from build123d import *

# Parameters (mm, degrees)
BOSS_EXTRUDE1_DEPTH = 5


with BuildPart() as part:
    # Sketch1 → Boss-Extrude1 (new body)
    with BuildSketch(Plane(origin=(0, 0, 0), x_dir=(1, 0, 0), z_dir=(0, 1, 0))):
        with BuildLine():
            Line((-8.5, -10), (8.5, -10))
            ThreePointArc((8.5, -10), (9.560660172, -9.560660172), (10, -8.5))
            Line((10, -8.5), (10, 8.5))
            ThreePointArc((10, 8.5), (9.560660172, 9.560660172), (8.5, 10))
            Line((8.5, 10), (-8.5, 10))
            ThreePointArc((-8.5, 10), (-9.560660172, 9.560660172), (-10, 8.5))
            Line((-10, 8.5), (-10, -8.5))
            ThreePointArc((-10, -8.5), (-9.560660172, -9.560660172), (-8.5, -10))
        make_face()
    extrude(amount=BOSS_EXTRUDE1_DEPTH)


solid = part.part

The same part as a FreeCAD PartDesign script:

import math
import FreeCAD as App
import Part
import Sketcher

V = App.Vector
Q = App.Units.Quantity

doc = App.newDocument("Part")
params = doc.addObject("Spreadsheet::Sheet", "Params")
for row, (alias, value) in enumerate([
    ("sketch1_radius", "1.5 mm"),
    ("sketch1_width", "17 mm"),
    ("pad1_length", "5 mm"),
], start=1):
    params.set(f"A{row}", alias)
    params.set(f"B{row}", "=" + value)
    params.setAlias(f"B{row}", alias)

body = doc.addObject("PartDesign::Body", "Body")

# Sketch on XZ plane
sketch1 = body.newObject("Sketcher::SketchObject", "Sketch")
sketch1.AttachmentSupport = (doc.getObject("XZ_Plane"), [""])
sketch1.MapMode = "FlatFace"
sketch1.addGeometry([
    Part.LineSegment(V(-8.5, 10, 0), V(8.5, 10, 0)),  # 0
    Part.ArcOfCircle(Part.Circle(V(8.5, 8.5, 0), V(0, 0, 1), 1.5), math.radians(0), math.radians(90)),  # 1
    Part.LineSegment(V(10, 8.5, 0), V(10, -8.5, 0)),  # 2
    Part.ArcOfCircle(Part.Circle(V(8.5, -8.5, 0), V(0, 0, 1), 1.5), math.radians(-90), math.radians(0)),  # 3
    Part.LineSegment(V(8.5, -10, 0), V(-8.5, -10, 0)),  # 4
    Part.ArcOfCircle(Part.Circle(V(-8.5, -8.5, 0), V(0, 0, 1), 1.5), math.radians(180), math.radians(270)),  # 5
    Part.LineSegment(V(-10, -8.5, 0), V(-10, 8.5, 0)),  # 6
    Part.ArcOfCircle(Part.Circle(V(-8.5, 8.5, 0), V(0, 0, 1), 1.5), math.radians(90), math.radians(180)),  # 7
], False)
sketch1.addConstraint([
    Sketcher.Constraint("Tangent", 0, 2, 1, 2),
    Sketcher.Constraint("Tangent", 1, 1, 2, 1),
    Sketcher.Constraint("Tangent", 2, 2, 3, 2),
    Sketcher.Constraint("Tangent", 3, 1, 4, 1),
    Sketcher.Constraint("Tangent", 4, 2, 5, 2),
    Sketcher.Constraint("Tangent", 5, 1, 6, 1),
    Sketcher.Constraint("Tangent", 6, 2, 7, 2),
    Sketcher.Constraint("Tangent", 7, 1, 0, 1),
    Sketcher.Constraint("Horizontal", 0),
    Sketcher.Constraint("Vertical", 2),
    Sketcher.Constraint("Horizontal", 4),
    Sketcher.Constraint("Vertical", 6),
    Sketcher.Constraint("Equal", 1, 3),
    Sketcher.Constraint("Equal", 3, 5),
    Sketcher.Constraint("Equal", 5, 7),
    Sketcher.Constraint("Symmetric", 1, 3, 5, 3, -1, 1),
    Sketcher.Constraint("Equal", 4, 2),
    Sketcher.Constraint("Radius", 1, Q("1.5 mm")),
    Sketcher.Constraint("DistanceX", 0, 1, 0, 2, Q("17 mm")),
])
sketch1.setExpression("Constraints[17]", "Params.sketch1_radius")
sketch1.setExpression("Constraints[18]", "Params.sketch1_width")
pad1 = body.newObject("PartDesign::Pad", "Pad")
pad1.Profile = sketch1
pad1.setExpression("Length", "Params.pad1_length")
pad1.Reversed = True

doc.recompute()
